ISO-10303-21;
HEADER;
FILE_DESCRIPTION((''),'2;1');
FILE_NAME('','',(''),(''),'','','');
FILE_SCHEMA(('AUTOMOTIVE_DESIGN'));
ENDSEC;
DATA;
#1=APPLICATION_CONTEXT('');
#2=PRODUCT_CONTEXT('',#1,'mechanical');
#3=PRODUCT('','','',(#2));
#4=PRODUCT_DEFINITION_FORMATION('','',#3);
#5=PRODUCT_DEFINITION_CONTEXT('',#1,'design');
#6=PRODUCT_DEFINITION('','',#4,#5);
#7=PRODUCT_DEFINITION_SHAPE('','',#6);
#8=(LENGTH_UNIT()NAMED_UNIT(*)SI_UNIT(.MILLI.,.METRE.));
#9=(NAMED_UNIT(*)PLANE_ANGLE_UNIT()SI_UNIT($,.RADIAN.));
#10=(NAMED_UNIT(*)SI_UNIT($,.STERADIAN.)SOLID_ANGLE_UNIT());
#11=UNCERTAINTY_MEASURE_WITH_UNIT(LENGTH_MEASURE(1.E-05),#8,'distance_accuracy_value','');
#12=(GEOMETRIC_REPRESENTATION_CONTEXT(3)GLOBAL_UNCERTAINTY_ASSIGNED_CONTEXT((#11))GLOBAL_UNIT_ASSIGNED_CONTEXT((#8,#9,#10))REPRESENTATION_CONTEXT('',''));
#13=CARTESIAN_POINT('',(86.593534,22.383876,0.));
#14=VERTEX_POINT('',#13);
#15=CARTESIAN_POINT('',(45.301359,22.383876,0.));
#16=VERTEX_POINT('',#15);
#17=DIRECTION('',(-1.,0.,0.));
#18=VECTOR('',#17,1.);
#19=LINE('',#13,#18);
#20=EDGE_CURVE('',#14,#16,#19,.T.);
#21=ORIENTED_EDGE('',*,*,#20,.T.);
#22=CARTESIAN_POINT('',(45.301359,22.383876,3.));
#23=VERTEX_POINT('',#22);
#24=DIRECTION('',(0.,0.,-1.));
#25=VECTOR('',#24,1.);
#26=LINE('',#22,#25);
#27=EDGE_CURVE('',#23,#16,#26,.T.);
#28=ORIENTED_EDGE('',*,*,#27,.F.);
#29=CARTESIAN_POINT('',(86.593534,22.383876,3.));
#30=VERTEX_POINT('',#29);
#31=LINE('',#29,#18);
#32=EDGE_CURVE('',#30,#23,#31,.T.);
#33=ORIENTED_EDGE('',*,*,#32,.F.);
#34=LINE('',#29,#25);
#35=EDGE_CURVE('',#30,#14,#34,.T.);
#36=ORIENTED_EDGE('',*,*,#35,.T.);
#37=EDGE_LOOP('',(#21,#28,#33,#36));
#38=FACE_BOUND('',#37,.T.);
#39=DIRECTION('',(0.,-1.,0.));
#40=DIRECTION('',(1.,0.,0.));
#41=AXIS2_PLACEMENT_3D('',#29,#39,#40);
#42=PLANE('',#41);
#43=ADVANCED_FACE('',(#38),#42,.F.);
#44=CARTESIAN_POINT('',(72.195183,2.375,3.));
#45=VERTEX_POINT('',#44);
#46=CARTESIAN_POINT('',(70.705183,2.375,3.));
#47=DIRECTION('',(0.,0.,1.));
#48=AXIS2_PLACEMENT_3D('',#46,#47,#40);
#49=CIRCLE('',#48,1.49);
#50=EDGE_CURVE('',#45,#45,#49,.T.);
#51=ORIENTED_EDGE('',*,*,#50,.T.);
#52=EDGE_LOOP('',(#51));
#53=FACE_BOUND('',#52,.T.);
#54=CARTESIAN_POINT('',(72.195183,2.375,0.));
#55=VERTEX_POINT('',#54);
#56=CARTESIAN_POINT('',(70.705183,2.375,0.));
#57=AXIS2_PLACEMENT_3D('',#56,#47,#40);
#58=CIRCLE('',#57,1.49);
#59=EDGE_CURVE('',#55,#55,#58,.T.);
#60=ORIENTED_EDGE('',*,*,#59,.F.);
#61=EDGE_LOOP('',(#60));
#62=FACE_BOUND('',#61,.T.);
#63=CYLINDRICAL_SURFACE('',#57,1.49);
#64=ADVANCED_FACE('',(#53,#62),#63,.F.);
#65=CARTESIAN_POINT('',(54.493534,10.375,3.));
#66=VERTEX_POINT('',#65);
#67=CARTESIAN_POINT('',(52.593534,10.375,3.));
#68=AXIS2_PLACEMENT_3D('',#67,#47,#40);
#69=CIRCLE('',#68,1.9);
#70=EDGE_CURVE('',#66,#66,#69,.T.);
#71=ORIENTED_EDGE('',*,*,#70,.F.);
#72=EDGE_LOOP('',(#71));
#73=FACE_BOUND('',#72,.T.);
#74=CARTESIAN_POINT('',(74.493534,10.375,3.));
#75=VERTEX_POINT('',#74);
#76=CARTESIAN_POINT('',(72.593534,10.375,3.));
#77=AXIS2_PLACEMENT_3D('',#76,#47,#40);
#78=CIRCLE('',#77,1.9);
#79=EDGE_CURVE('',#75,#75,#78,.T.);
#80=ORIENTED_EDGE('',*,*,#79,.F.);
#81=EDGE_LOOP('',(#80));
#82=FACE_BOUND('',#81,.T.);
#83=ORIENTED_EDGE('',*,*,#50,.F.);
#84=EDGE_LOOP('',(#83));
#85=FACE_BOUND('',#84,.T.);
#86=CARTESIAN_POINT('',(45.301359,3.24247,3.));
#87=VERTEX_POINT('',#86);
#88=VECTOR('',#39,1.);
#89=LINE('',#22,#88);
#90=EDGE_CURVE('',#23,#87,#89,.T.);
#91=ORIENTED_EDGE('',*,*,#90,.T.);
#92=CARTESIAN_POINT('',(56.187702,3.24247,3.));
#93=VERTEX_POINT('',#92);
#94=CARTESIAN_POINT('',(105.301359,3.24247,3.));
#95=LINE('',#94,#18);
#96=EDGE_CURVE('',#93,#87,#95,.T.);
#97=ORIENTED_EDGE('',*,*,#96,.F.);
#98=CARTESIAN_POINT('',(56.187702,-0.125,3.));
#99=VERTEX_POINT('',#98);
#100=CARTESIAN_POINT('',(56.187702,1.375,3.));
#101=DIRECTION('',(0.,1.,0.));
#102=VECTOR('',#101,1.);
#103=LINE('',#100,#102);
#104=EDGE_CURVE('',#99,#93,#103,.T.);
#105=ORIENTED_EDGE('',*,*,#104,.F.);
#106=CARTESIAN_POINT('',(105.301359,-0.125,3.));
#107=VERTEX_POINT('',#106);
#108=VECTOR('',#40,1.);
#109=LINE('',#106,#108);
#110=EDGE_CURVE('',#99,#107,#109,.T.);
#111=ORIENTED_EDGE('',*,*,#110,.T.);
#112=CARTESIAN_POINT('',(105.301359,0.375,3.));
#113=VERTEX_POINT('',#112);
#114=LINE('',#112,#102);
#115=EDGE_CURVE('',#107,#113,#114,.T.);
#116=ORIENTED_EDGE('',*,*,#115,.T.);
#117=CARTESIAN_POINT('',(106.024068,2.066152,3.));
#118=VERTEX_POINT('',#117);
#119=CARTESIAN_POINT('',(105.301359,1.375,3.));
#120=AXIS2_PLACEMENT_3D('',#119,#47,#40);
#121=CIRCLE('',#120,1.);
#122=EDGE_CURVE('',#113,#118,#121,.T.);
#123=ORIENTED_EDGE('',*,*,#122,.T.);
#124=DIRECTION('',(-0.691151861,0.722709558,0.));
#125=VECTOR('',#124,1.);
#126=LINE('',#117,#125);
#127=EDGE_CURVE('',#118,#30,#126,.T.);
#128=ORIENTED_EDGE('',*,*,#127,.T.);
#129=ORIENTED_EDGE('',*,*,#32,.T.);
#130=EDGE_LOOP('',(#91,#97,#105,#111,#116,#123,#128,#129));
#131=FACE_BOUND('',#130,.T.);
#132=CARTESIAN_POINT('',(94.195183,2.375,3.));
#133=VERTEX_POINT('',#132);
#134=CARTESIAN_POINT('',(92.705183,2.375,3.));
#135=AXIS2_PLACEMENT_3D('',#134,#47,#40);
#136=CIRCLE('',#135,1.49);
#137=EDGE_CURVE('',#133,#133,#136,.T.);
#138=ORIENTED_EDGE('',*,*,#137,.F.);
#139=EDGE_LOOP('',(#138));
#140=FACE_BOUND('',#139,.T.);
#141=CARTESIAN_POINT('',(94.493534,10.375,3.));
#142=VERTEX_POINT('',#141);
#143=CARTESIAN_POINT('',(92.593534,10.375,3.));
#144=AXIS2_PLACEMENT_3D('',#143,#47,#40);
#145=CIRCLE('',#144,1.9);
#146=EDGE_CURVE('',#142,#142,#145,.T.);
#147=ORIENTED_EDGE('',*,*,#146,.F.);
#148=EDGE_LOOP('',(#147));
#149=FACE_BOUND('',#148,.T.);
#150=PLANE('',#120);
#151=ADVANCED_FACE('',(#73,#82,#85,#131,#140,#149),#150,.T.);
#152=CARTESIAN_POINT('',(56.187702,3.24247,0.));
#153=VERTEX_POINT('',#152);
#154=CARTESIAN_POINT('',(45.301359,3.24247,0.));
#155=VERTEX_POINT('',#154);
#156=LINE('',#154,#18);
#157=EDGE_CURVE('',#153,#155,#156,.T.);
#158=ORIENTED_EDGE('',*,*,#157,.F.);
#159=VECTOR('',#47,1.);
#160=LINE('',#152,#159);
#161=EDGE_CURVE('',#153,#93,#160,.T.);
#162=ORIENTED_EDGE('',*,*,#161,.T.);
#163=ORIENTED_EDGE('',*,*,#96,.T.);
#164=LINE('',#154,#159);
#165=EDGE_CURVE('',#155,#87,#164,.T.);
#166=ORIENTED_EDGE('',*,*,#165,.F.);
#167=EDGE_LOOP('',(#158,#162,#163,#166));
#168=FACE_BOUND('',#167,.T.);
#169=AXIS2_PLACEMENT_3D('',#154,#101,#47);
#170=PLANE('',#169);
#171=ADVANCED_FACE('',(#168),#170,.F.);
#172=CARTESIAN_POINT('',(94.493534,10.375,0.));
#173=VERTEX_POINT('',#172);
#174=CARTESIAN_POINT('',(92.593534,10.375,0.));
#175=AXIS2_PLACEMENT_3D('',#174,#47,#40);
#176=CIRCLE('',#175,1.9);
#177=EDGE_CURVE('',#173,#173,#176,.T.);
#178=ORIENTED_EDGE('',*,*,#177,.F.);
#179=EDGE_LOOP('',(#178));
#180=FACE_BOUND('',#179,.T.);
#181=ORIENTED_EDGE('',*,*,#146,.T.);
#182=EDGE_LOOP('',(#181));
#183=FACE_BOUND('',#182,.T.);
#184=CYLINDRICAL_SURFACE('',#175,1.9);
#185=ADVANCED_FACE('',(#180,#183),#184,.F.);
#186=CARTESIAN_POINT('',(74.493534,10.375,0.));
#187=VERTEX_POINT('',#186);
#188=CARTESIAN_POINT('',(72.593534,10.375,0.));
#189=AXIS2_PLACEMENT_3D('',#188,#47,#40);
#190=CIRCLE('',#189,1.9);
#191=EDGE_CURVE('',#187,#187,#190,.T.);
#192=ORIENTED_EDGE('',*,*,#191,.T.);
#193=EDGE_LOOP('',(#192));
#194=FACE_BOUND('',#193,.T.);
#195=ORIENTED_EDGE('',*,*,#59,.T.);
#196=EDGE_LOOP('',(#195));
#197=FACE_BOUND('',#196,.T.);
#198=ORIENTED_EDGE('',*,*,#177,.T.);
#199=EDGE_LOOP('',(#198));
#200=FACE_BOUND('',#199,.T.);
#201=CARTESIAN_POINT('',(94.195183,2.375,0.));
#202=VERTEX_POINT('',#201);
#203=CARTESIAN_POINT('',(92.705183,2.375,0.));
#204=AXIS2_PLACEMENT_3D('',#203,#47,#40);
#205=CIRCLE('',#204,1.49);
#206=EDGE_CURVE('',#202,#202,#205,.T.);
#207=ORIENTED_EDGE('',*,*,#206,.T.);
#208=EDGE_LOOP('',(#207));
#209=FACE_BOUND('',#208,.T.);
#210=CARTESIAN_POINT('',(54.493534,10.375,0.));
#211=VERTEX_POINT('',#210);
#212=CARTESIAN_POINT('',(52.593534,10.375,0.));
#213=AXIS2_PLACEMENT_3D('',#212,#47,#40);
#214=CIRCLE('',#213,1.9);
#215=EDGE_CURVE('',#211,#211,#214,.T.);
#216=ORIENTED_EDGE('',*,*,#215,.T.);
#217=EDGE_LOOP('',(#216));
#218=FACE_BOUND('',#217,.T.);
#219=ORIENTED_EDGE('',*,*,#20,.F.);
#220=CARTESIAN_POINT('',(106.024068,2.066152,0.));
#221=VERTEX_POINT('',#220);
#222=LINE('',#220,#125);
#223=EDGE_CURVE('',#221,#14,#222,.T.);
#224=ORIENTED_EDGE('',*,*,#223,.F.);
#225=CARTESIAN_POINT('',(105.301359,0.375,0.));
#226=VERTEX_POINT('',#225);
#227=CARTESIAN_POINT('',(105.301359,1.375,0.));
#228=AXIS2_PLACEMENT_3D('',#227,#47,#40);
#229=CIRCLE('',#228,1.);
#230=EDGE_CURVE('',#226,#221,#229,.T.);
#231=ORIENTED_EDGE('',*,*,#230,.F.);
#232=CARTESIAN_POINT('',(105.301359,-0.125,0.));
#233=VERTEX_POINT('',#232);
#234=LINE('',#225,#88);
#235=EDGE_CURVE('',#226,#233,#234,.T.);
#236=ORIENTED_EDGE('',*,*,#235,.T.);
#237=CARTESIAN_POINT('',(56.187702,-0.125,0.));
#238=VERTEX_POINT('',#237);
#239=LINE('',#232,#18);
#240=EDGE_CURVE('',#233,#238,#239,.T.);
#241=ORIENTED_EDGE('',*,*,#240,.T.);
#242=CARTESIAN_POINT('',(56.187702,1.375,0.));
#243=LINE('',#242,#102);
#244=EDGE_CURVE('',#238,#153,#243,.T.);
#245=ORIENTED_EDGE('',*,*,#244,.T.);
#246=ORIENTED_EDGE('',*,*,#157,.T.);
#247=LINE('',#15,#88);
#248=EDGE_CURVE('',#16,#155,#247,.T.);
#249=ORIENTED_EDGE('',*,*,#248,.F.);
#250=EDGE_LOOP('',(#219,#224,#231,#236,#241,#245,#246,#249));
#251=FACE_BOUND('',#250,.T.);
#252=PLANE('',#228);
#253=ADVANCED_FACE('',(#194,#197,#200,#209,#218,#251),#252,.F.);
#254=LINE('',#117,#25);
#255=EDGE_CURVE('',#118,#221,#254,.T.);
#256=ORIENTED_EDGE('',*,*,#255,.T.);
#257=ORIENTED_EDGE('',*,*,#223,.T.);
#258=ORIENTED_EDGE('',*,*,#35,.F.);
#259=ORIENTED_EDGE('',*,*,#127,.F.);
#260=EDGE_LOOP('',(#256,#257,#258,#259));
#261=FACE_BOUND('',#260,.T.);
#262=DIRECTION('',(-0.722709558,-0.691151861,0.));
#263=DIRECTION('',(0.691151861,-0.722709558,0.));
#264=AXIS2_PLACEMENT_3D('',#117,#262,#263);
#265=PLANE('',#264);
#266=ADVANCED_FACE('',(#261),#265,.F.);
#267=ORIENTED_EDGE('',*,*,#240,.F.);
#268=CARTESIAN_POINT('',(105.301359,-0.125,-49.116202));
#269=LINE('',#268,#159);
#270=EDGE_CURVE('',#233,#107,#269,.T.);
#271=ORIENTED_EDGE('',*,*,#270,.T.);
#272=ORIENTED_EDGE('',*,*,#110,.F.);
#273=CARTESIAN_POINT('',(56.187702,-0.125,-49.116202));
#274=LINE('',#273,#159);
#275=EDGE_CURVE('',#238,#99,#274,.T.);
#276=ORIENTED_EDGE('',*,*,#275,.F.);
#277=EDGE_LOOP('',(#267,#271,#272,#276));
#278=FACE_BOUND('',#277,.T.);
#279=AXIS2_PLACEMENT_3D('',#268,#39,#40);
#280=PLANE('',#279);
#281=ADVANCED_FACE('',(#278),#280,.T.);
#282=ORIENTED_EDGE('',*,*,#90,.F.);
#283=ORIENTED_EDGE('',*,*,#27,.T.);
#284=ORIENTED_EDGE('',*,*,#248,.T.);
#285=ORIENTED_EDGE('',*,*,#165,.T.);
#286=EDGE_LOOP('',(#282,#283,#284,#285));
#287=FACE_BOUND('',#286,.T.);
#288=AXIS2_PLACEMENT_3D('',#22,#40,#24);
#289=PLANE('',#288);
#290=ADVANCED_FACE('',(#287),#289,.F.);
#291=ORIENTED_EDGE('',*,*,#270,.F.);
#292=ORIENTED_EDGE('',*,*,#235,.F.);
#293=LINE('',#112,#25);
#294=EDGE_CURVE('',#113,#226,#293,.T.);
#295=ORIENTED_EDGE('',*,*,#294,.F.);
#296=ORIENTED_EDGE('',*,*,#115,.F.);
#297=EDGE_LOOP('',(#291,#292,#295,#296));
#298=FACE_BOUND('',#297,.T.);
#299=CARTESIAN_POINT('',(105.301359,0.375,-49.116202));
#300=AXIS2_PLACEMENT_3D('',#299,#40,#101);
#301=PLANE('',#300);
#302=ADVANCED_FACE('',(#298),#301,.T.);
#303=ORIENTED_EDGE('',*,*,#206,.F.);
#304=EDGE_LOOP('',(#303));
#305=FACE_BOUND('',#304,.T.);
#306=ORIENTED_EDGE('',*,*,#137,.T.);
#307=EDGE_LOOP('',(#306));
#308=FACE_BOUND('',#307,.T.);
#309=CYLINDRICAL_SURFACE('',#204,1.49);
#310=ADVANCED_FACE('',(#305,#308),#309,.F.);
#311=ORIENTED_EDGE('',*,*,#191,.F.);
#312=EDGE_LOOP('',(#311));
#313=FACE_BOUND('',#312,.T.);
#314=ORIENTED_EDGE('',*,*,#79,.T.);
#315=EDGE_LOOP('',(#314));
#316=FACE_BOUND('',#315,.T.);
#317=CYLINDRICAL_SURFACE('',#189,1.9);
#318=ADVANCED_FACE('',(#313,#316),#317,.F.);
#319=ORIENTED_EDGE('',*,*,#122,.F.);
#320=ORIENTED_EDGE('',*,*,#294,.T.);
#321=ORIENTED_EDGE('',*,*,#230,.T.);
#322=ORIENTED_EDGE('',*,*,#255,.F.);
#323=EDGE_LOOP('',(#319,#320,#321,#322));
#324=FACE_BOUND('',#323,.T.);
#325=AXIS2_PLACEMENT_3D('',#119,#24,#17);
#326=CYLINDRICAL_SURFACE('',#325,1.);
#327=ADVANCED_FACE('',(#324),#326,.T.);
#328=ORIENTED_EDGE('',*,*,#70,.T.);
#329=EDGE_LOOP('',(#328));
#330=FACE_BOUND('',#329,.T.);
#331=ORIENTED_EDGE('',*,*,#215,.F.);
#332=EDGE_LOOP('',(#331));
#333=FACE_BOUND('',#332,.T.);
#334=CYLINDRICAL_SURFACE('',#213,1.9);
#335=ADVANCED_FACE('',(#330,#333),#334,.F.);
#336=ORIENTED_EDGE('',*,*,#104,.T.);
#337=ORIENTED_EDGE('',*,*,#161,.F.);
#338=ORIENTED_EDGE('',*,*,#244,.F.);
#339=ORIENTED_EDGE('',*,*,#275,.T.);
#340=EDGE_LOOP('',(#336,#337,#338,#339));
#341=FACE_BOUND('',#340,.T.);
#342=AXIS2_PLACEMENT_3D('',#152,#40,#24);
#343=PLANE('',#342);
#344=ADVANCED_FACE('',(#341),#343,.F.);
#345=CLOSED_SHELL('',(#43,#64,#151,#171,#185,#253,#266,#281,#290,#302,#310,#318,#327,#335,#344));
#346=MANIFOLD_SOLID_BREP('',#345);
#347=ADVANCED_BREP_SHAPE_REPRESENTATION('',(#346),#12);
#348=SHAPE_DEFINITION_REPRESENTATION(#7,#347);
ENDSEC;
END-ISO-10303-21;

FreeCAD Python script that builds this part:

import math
import FreeCAD as App
import Part
import Sketcher

doc = App.newDocument("Part")
body = doc.addObject("PartDesign::Body", "Body")

# Sketch on XY plane
sketch1 = doc.addObject("Sketcher::SketchObject", "Sketch")
body.addObject(sketch1)
sketch1.AttachmentSupport = (doc.XY_Plane, [""])
sketch1.MapMode = "FlatFace"
sketch1.addGeometry([
    Part.LineSegment(App.Vector(45.3, 22.4, 0), App.Vector(45.3, -1.5, 0)),  # 0
    Part.LineSegment(App.Vector(45.3, -1.5, 0), App.Vector(53, 0, 0)),  # 1
    Part.LineSegment(App.Vector(53, 0, 0), App.Vector(53.7, 0.4, 0)),  # 2
    Part.LineSegment(App.Vector(53.7, 0.4, 0), App.Vector(105.3, 0.4, 0)),  # 3
    Part.ArcOfCircle(Part.Circle(App.Vector(105.3, 1.4, 0), App.Vector(0, 0, 1), 1), math.radians(-90), math.radians(44)),  # 4
    Part.LineSegment(App.Vector(106, 2.1, 0), App.Vector(86.6, 22.4, 0)),  # 5
    Part.LineSegment(App.Vector(86.6, 22.4, 0), App.Vector(45.3, 22.4, 0)),  # 6
], False)
sketch1.addConstraint([
    Sketcher.Constraint("Coincident", 0, 2, 1, 1),
    Sketcher.Constraint("Coincident", 1, 2, 2, 1),
    Sketcher.Constraint("Coincident", 2, 2, 3, 1),
    Sketcher.Constraint("Tangent", 3, 2, 4, 1),
    Sketcher.Constraint("Tangent", 4, 2, 5, 1),
    Sketcher.Constraint("Coincident", 5, 2, 6, 1),
    Sketcher.Constraint("Coincident", 6, 2, 0, 1),
    Sketcher.Constraint("Vertical", 0),
    Sketcher.Constraint("Horizontal", 3),
    Sketcher.Constraint("Horizontal", 6),
    Sketcher.Constraint("PointOnObject", 1, 2, -1),
    Sketcher.Constraint("Radius", 4, 1.0),
    Sketcher.Constraint("DistanceX", -1, 1, 1, 2, 53.0),
    Sketcher.Constraint("DistanceX", 0, 2, 4, 3, 60.0),
    Sketcher.Constraint("DistanceY", -1, 1, 4, 3, 1.375),
    Sketcher.Constraint("DistanceY", 0, 2, 0, 1, 23.83645),
    Sketcher.Constraint("Distance", 1, 7.834478),
    Sketcher.Constraint("DistanceX", 3, 1, 3, 2, 51.639877),
    Sketcher.Constraint("DistanceX", 6, 2, 6, 1, 41.292175),
    Sketcher.Constraint("DistanceX", -1, 1, 4, 3, 105.301359),
])
pad1 = doc.addObject("PartDesign::Pad", "Pad")
body.addObject(pad1)
pad1.Profile = sketch1
pad1.Length = 3

# Sketch on XY plane
sketch2 = doc.addObject("Sketcher::SketchObject", "Sketch001")
body.addObject(sketch2)
sketch2.AttachmentSupport = (doc.XY_Plane, [""])
sketch2.MapMode = "FlatFace"
sketch2.AttachmentOffset = App.Placement(App.Vector(0, 0, 3), App.Rotation())
sketch2.addGeometry([
    Part.LineSegment(App.Vector(45, 3, 0), App.Vector(45, -5, 0)),
    Part.LineSegment(App.Vector(45, -5, 0), App.Vector(56, -5, 0)),
    Part.LineSegment(App.Vector(56, -5, 0), App.Vector(56, 3, 0)),
    Part.LineSegment(App.Vector(56, 3, 0), App.Vector(45, 3, 0)),
], False)
sketch2.addConstraint([
    Sketcher.Constraint("Coincident", 0, 2, 1, 1),
    Sketcher.Constraint("Coincident", 1, 2, 2, 1),
    Sketcher.Constraint("Coincident", 2, 2, 3, 1),
    Sketcher.Constraint("Coincident", 3, 2, 0, 1),
    Sketcher.Constraint("Vertical", 0),
    Sketcher.Constraint("Horizontal", 1),
    Sketcher.Constraint("Vertical", 2),
    Sketcher.Constraint("Horizontal", 3),
    Sketcher.Constraint("DistanceY", 0, 2, 0, 1, 8.708921),
    Sketcher.Constraint("DistanceX", -1, 1, 1, 2, 56.187702),
    Sketcher.Constraint("DistanceX", 1, 1, 1, 2, 10.886343),
    Sketcher.Constraint("DistanceY", 0, 2, -1, 1, 5.466451),
])
pocket1 = doc.addObject("PartDesign::Pocket", "Pocket")
body.addObject(pocket1)
pocket1.Profile = sketch2
pocket1.Type = "ThroughAll"
pocket1.Midplane = True

# Sketch on XY plane
sketch3 = doc.addObject("Sketcher::SketchObject", "Sketch002")
body.addObject(sketch3)
sketch3.AttachmentSupport = (doc.XY_Plane, [""])
sketch3.MapMode = "FlatFace"
sketch3.AttachmentOffset = App.Placement(App.Vector(0, 0, 3), App.Rotation())
sketch3.addGeometry([
    Part.Circle(App.Vector(52.6, 10.4, 0), App.Vector(0, 0, 1), 1.9),
    Part.Circle(App.Vector(72.6, 10.4, 0), App.Vector(0, 0, 1), 1.9),
    Part.Circle(App.Vector(92.6, 10.4, 0), App.Vector(0, 0, 1), 1.9),
], False)
sketch3.addConstraint([
    Sketcher.Constraint("Equal", 0, 1),
    Sketcher.Constraint("Equal", 1, 2),
    Sketcher.Constraint("Horizontal", 0, 3, 1, 3),
    Sketcher.Constraint("Horizontal", 1, 3, 2, 3),
    Sketcher.Constraint("Diameter", 0, 3.8),
    Sketcher.Constraint("DistanceX", 0, 3, 1, 3, 20.0),
    Sketcher.Constraint("DistanceX", 1, 3, 2, 3, 20.0),
    Sketcher.Constraint("DistanceY", -1, 1, 0, 3, 10.375),
    Sketcher.Constraint("DistanceX", -1, 1, 0, 3, 52.593534),
])
pocket2 = doc.addObject("PartDesign::Pocket", "Pocket001")
body.addObject(pocket2)
pocket2.Profile = sketch3
pocket2.Type = "ThroughAll"
pocket2.Midplane = True

# Sketch on XY plane
sketch4 = doc.addObject("Sketcher::SketchObject", "Sketch003")
body.addObject(sketch4)
sketch4.AttachmentSupport = (doc.XY_Plane, [""])
sketch4.MapMode = "FlatFace"
sketch4.AttachmentOffset = App.Placement(App.Vector(0, 0, 3), App.Rotation())
sketch4.addGeometry([
    Part.Circle(App.Vector(92.7, 2.4, 0), App.Vector(0, 0, 1), 1.5),
    Part.Circle(App.Vector(70.7, 2.4, 0), App.Vector(0, 0, 1), 1.5),
], False)
sketch4.addConstraint([
    Sketcher.Constraint("Equal", 0, 1),
    Sketcher.Constraint("Horizontal", 0, 3, 1, 3),
    Sketcher.Constraint("Diameter", 0, 2.98),
    Sketcher.Constraint("DistanceX", 1, 3, 0, 3, 22.0),
    Sketcher.Constraint("DistanceY", -1, 1, 0, 3, 2.375),
    Sketcher.Constraint("DistanceX", -1, 1, 0, 3, 92.705183),
])
pocket3 = doc.addObject("PartDesign::Pocket", "Pocket002")
body.addObject(pocket3)
pocket3.Profile = sketch4
pocket3.Type = "ThroughAll"
pocket3.Midplane = True

# Sketch on XY plane
sketch5 = doc.addObject("Sketcher::SketchObject", "Sketch004")
body.addObject(sketch5)
sketch5.AttachmentSupport = (doc.XY_Plane, [""])
sketch5.MapMode = "FlatFace"
sketch5.AttachmentOffset = App.Placement(App.Vector(0, 0, 3), App.Rotation())
sketch5.addGeometry([
    Part.LineSegment(App.Vector(56.2, 0.4, 0), App.Vector(56.2, -0.1, 0)),
    Part.LineSegment(App.Vector(56.2, -0.1, 0), App.Vector(105.3, -0.1, 0)),
    Part.LineSegment(App.Vector(105.3, -0.1, 0), App.Vector(105.3, 0.4, 0)),
    Part.LineSegment(App.Vector(105.3, 0.4, 0), App.Vector(56.2, 0.4, 0)),
], False)
sketch5.addConstraint([
    Sketcher.Constraint("Coincident", 0, 2, 1, 1),
    Sketcher.Constraint("Coincident", 1, 2, 2, 1),
    Sketcher.Constraint("Coincident", 2, 2, 3, 1),
    Sketcher.Constraint("Coincident", 3, 2, 0, 1),
    Sketcher.Constraint("Vertical", 0),
    Sketcher.Constraint("Horizontal", 1),
    Sketcher.Constraint("Vertical", 2),
    Sketcher.Constraint("Horizontal", 3),
    Sketcher.Constraint("DistanceY", 0, 2, 0, 1, 0.5),
    Sketcher.Constraint("DistanceY", 0, 2, -1, 1, 0.125),
    Sketcher.Constraint("DistanceX", -1, 1, 0, 2, 56.187702),
    Sketcher.Constraint("DistanceX", 1, 1, 1, 2, 49.113657),
])
pad2 = doc.addObject("PartDesign::Pad", "Pad001")
body.addObject(pad2)
pad2.Profile = sketch5
pad2.Length = 3
pad2.Reversed = True

doc.recompute()
